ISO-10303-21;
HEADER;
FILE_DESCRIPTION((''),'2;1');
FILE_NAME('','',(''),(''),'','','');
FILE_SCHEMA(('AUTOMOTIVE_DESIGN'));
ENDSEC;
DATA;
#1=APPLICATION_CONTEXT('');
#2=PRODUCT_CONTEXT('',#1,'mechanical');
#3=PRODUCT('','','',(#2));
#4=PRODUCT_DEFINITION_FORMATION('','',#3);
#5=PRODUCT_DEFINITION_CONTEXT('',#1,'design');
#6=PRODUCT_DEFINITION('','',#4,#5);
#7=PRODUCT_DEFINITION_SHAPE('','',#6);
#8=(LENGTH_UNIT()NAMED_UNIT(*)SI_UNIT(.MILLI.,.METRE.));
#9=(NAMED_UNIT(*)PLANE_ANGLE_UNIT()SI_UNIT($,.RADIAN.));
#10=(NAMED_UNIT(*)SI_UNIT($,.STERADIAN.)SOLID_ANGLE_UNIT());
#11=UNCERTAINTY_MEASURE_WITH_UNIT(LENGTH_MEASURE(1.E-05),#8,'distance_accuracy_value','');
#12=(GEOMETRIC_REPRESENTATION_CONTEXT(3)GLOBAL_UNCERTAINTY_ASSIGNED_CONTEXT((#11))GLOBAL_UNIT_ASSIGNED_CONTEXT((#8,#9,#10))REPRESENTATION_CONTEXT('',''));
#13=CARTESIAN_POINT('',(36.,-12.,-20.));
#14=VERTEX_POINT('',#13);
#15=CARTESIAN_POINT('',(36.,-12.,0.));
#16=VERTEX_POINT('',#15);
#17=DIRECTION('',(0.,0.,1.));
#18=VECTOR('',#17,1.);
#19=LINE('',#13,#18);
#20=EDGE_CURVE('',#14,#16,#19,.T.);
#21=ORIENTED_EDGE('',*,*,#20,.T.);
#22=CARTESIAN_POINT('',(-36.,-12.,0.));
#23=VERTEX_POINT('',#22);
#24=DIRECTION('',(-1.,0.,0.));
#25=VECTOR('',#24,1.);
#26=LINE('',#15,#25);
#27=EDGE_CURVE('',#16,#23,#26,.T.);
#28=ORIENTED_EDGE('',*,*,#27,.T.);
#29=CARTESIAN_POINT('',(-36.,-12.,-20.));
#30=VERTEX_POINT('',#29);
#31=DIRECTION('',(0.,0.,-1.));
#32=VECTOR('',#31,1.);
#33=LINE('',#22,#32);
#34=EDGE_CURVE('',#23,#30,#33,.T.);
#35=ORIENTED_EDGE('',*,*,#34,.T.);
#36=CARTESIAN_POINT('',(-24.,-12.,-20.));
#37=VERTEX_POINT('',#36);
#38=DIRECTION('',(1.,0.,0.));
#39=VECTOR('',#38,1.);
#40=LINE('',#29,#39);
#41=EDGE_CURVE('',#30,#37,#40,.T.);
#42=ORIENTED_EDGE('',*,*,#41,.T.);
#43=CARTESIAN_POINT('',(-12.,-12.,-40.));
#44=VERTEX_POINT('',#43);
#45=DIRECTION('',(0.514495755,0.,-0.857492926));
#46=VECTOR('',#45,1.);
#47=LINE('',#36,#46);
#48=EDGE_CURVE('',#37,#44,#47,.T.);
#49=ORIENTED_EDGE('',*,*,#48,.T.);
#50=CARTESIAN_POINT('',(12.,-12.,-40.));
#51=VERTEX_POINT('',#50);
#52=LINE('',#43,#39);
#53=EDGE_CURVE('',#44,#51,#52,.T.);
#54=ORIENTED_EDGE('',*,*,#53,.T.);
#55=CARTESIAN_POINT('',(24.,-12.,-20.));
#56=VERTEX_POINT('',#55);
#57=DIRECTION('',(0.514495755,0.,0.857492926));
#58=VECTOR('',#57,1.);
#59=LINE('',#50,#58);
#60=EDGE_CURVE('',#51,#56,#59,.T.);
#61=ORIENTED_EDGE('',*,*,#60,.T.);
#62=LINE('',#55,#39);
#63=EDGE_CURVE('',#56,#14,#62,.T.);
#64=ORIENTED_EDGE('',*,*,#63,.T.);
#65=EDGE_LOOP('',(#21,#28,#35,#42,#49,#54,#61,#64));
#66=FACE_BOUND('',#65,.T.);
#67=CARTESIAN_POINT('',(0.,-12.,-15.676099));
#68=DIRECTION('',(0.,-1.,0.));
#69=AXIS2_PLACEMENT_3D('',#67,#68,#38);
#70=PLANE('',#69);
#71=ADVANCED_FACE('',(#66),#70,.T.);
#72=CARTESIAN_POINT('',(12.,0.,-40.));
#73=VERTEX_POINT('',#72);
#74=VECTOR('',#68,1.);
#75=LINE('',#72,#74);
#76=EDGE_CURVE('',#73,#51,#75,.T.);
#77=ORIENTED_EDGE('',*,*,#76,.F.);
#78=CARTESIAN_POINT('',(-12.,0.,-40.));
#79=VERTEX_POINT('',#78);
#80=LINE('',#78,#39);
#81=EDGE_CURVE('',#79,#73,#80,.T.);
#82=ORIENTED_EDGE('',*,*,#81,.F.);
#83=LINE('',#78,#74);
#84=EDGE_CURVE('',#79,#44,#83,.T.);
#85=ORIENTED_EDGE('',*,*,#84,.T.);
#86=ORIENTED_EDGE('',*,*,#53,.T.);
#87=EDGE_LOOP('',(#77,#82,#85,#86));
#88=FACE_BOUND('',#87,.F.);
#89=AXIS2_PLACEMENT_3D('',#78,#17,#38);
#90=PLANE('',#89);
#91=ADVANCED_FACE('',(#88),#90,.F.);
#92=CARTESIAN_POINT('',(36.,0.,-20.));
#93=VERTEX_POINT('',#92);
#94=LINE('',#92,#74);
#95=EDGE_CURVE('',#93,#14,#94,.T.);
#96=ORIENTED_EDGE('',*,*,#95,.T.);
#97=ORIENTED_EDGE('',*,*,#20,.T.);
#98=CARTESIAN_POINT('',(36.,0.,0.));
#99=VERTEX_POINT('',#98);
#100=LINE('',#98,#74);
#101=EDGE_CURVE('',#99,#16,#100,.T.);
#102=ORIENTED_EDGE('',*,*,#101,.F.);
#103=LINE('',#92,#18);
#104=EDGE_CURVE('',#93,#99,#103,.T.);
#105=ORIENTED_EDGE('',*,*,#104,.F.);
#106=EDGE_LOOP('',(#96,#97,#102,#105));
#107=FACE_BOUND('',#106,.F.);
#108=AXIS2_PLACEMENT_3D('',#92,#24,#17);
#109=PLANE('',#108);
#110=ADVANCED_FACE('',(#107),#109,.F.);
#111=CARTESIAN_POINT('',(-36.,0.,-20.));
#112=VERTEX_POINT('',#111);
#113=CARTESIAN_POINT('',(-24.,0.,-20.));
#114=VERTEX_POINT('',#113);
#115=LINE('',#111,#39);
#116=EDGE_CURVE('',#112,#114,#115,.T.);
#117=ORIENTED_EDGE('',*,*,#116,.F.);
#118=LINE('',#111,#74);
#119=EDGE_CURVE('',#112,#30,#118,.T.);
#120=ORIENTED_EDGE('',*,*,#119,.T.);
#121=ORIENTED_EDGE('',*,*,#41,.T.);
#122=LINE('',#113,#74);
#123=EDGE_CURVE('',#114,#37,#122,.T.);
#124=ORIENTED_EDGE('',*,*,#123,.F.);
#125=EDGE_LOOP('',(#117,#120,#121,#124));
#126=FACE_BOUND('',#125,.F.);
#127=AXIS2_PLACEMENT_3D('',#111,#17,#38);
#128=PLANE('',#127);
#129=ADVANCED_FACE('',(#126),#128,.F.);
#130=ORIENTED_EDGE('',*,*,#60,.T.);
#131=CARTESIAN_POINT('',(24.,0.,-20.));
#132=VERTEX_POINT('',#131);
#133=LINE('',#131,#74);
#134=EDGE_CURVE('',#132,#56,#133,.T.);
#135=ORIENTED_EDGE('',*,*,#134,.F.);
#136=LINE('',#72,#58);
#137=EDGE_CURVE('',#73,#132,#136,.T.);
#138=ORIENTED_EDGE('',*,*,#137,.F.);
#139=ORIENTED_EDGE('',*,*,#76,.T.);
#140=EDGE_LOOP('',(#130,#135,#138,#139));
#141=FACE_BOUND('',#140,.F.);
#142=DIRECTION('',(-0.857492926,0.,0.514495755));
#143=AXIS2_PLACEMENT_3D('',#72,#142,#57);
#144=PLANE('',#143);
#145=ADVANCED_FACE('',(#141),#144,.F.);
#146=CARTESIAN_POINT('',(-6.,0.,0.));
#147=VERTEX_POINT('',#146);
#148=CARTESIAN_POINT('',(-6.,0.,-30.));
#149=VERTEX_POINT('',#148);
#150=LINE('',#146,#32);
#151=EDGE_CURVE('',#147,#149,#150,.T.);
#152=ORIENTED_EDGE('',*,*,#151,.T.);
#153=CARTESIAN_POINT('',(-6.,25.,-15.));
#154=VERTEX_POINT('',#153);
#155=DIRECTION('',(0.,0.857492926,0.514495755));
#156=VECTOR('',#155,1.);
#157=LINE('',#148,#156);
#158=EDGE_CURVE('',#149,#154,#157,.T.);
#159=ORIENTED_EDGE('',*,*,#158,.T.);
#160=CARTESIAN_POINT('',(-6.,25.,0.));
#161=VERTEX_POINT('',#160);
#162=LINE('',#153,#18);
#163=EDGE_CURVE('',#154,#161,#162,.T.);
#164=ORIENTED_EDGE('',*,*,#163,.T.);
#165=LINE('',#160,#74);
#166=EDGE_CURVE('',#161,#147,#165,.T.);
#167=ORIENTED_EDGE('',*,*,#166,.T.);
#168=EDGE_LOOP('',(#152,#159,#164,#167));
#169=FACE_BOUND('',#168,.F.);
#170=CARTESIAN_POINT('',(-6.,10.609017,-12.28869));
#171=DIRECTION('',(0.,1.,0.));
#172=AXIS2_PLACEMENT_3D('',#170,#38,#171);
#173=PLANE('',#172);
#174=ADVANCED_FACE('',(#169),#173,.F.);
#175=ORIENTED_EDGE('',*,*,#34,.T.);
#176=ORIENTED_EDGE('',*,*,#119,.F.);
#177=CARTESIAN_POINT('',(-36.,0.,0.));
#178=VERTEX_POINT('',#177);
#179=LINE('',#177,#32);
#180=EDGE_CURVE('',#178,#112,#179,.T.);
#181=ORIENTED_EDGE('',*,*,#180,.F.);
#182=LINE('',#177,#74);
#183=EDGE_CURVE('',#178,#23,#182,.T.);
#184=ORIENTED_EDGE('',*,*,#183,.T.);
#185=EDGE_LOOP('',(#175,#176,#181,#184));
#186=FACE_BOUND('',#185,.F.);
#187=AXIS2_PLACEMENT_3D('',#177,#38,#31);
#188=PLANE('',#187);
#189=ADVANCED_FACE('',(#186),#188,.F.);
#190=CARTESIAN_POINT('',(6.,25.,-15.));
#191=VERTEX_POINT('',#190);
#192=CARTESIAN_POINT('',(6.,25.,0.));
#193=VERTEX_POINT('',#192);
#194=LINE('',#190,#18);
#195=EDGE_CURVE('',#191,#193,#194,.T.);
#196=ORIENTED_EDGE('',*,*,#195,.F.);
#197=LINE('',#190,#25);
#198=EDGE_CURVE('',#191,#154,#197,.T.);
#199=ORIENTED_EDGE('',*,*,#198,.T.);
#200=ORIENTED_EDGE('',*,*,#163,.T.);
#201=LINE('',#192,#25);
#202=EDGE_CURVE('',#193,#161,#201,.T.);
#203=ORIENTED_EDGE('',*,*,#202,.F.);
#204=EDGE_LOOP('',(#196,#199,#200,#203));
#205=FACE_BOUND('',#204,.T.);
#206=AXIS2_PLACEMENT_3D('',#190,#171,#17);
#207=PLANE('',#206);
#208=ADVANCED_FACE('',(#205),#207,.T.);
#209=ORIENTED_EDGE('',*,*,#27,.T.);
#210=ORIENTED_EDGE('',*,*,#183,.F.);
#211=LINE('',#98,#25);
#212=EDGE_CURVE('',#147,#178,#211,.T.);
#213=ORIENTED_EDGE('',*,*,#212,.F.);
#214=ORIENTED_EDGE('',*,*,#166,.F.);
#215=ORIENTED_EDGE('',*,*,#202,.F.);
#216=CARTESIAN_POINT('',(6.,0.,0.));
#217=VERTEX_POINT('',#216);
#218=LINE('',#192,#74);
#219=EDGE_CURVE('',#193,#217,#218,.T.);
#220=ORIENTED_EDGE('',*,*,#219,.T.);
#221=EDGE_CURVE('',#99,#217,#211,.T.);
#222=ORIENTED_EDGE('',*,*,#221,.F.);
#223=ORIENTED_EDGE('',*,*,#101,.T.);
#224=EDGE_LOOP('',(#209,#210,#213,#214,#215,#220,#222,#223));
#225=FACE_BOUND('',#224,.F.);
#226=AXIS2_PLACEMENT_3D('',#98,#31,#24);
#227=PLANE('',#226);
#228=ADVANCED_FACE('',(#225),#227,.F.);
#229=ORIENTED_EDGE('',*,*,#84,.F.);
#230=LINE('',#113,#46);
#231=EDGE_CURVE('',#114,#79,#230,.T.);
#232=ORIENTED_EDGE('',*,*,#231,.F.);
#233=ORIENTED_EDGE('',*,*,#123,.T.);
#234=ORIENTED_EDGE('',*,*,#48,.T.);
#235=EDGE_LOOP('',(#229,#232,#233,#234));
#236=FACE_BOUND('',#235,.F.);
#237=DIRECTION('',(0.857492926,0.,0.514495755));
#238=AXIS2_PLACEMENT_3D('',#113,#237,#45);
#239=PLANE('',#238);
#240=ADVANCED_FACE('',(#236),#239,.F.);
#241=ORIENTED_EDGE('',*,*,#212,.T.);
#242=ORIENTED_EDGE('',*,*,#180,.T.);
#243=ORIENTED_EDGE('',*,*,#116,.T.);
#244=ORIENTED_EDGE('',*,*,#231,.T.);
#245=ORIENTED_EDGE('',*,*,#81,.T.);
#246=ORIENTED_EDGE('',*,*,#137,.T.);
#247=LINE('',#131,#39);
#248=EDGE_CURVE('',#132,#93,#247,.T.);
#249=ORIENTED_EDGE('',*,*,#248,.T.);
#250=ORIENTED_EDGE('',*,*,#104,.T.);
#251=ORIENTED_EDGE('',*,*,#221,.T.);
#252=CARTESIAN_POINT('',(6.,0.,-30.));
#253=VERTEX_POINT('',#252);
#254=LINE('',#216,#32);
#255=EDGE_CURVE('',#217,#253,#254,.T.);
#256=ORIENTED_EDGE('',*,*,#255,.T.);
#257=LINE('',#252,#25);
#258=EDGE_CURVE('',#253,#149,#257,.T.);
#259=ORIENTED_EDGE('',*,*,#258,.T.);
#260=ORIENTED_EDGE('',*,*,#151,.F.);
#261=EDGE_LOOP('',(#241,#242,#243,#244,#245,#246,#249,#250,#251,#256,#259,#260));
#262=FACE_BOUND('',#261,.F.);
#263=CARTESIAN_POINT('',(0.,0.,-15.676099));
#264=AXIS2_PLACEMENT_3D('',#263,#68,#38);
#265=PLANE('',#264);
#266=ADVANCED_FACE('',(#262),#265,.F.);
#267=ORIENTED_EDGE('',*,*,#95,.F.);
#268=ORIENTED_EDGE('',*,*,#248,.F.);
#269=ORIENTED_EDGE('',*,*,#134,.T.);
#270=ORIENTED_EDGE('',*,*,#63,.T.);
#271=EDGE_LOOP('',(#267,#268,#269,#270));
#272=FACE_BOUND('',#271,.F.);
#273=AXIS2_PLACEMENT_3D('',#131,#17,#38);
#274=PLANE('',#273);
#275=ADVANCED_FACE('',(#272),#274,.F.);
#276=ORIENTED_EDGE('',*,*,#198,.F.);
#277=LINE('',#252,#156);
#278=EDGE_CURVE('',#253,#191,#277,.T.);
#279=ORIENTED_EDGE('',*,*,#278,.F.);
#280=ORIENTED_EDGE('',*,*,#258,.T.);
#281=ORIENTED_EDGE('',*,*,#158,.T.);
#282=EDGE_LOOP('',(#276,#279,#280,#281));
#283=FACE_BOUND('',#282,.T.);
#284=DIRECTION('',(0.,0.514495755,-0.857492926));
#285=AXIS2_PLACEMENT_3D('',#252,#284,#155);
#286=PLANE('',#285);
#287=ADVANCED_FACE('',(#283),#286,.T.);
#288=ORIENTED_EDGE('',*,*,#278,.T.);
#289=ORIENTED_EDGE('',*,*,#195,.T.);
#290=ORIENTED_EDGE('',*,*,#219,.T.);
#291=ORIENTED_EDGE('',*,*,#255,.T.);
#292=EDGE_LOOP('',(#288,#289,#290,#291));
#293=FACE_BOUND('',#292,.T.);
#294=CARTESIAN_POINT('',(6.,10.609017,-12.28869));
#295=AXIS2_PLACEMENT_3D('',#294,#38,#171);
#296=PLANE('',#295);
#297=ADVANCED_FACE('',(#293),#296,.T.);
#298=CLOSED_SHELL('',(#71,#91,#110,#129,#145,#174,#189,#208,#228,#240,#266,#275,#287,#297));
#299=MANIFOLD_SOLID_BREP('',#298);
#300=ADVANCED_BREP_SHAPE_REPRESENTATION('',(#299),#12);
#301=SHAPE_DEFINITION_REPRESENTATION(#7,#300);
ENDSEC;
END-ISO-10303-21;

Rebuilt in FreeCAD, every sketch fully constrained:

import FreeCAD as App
import Part
import Sketcher

V = App.Vector

doc = App.newDocument("Part")
body = doc.addObject("PartDesign::Body", "Body")

sketch1 = body.newObject("Sketcher::SketchObject", "Sketch")
sketch1.AttachmentSupport = (doc.getObject("XZ_Plane"), [""])
sketch1.MapMode = "FlatFace"
sketch1.addGeometry(Part.LineSegment(V(36, 0, 0), V(-36, 0, 0)), False)
sketch1.addGeometry(Part.LineSegment(V(-36, 0, 0), V(-36, -20, 0)), False)
sketch1.addGeometry(Part.LineSegment(V(-36, -20, 0), V(-24, -20, 0)), False)
sketch1.addGeometry(Part.LineSegment(V(-24, -20, 0), V(-12, -40, 0)), False)
sketch1.addGeometry(Part.LineSegment(V(-12, -40, 0), V(12, -40, 0)), False)
sketch1.addGeometry(Part.LineSegment(V(12, -40, 0), V(24, -20, 0)), False)
sketch1.addGeometry(Part.LineSegment(V(24, -20, 0), V(36, -20, 0)), False)
sketch1.addGeometry(Part.LineSegment(V(36, -20, 0), V(36, 0, 0)), False)
sketch1.addConstraint(Sketcher.Constraint("Coincident", 0, 2, 1, 1))
sketch1.addConstraint(Sketcher.Constraint("Coincident", 1, 2, 2, 1))
sketch1.addConstraint(Sketcher.Constraint("Coincident", 2, 2, 3, 1))
sketch1.addConstraint(Sketcher.Constraint("Coincident", 3, 2, 4, 1))
sketch1.addConstraint(Sketcher.Constraint("Coincident", 4, 2, 5, 1))
sketch1.addConstraint(Sketcher.Constraint("Coincident", 5, 2, 6, 1))
sketch1.addConstraint(Sketcher.Constraint("Coincident", 6, 2, 7, 1))
sketch1.addConstraint(Sketcher.Constraint("Coincident", 7, 2, 0, 1))
sketch1.addConstraint(Sketcher.Constraint("Horizontal", 0))
sketch1.addConstraint(Sketcher.Constraint("Vertical", 1))
sketch1.addConstraint(Sketcher.Constraint("Horizontal", 2))
sketch1.addConstraint(Sketcher.Constraint("Horizontal", 4))
sketch1.addConstraint(Sketcher.Constraint("Horizontal", 6))
sketch1.addConstraint(Sketcher.Constraint("Vertical", 7))
sketch1.addConstraint(Sketcher.Constraint("Symmetric", 0, 2, 7, 2, -1, 1))
sketch1.addConstraint(Sketcher.Constraint("Symmetric", 2, 2, 5, 2, -2))
sketch1.addConstraint(Sketcher.Constraint("Equal", 3, 5))
sketch1.addConstraint(Sketcher.Constraint("DistanceX", 0, 2, 0, 1, 72.0))
sketch1.addConstraint(Sketcher.Constraint("DistanceX", 2, 1, 2, 2, 12.0))
sketch1.addConstraint(Sketcher.Constraint("DistanceX", 4, 1, 4, 2, 24.0))
sketch1.addConstraint(Sketcher.Constraint("DistanceY", 1, 2, 1, 1, 20.0))
sketch1.addConstraint(Sketcher.Constraint("DistanceY", 3, 2, -1, 1, 40.0))
pad1 = body.newObject("PartDesign::Pad", "Pad")
pad1.Profile = sketch1
pad1.Length = 12

sketch2 = body.newObject("Sketcher::SketchObject", "Sketch001")
sketch2.AttachmentSupport = (doc.getObject("YZ_Plane"), [""])
sketch2.MapMode = "FlatFace"
sketch2.AttachmentOffset = App.Placement(V(0, 0, 6), App.Rotation())
sketch2.addGeometry(Part.LineSegment(V(0, 0, 0), V(0, -30, 0)), False)
sketch2.addGeometry(Part.LineSegment(V(0, -30, 0), V(25, -15, 0)), False)
sketch2.addGeometry(Part.LineSegment(V(25, -15, 0), V(25, 0, 0)), False)
sketch2.addGeometry(Part.LineSegment(V(25, 0, 0), V(0, 0, 0)), False)
sketch2.addConstraint(Sketcher.Constraint("Coincident", 0, 2, 1, 1))
sketch2.addConstraint(Sketcher.Constraint("Coincident", 1, 2, 2, 1))
sketch2.addConstraint(Sketcher.Constraint("Coincident", 2, 2, 3, 1))
sketch2.addConstraint(Sketcher.Constraint("Coincident", 3, 2, 0, 1))
sketch2.addConstraint(Sketcher.Constraint("Vertical", 0))
sketch2.addConstraint(Sketcher.Constraint("Vertical", 2))
sketch2.addConstraint(Sketcher.Constraint("Horizontal", 3))
sketch2.addConstraint(Sketcher.Constraint("Coincident", 3, 2, -1, 1))
sketch2.addConstraint(Sketcher.Constraint("DistanceX", 3, 2, 3, 1, 25.0))
sketch2.addConstraint(Sketcher.Constraint("DistanceY", 0, 2, 0, 1, 30.0))
sketch2.addConstraint(Sketcher.Constraint("DistanceY", 2, 1, 2, 2, 15.0))
pad2 = body.newObject("PartDesign::Pad", "Pad001")
pad2.Profile = sketch2
pad2.Length = 12
pad2.Reversed = True

doc.recompute()
